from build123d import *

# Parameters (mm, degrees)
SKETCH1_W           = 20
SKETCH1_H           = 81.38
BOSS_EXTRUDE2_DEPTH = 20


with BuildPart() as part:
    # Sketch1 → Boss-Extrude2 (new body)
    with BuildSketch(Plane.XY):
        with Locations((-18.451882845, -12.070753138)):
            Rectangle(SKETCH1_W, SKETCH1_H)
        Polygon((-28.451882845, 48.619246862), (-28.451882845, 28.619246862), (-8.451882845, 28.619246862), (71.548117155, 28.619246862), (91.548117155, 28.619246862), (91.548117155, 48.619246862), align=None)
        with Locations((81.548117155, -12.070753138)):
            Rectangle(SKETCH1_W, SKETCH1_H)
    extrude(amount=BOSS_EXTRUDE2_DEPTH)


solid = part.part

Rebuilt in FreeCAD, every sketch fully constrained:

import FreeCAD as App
import Part
import Sketcher

V = App.Vector
Q = App.Units.Quantity

doc = App.newDocument("Part")
params = doc.addObject("Spreadsheet::Sheet", "Params")
for row, (alias, value) in enumerate([
    ("sketch1_width", "20 mm"),
    ("sketch1_width2", "80 mm"),
    ("sketch1_height", "81.38 mm"),
    ("pad1_length", "20 mm"),
], start=1):
    params.set(f"A{row}", alias)
    params.set(f"B{row}", "=" + value)
    params.setAlias(f"B{row}", alias)

body = doc.addObject("PartDesign::Body", "Body")

# Sketch on XY plane
sketch1 = body.newObject("Sketcher::SketchObject", "Sketch")
sketch1.AttachmentSupport = (doc.getObject("XY_Plane"), [""])
sketch1.MapMode = "FlatFace"
sketch1.addGeometry([
    Part.LineSegment(V(-28, -53, 0), V(-8, -53, 0)),  # 0
    Part.LineSegment(V(-8, -53, 0), V(-8, 29, 0)),  # 1
    Part.LineSegment(V(-8, 29, 0), V(72, 29, 0)),  # 2
    Part.LineSegment(V(72, 29, 0), V(72, -53, 0)),  # 3
    Part.LineSegment(V(72, -53, 0), V(92, -53, 0)),  # 4
    Part.LineSegment(V(92, -53, 0), V(92, 49, 0)),  # 5
    Part.LineSegment(V(92, 49, 0), V(-28, 49, 0)),  # 6
    Part.LineSegment(V(-28, 49, 0), V(-28, -53, 0)),  # 7
], False)
sketch1.addConstraint([
    Sketcher.Constraint("Coincident", 0, 2, 1, 1),
    Sketcher.Constraint("Coincident", 1, 2, 2, 1),
    Sketcher.Constraint("Coincident", 2, 2, 3, 1),
    Sketcher.Constraint("Coincident", 3, 2, 4, 1),
    Sketcher.Constraint("Coincident", 4, 2, 5, 1),
    Sketcher.Constraint("Coincident", 5, 2, 6, 1),
    Sketcher.Constraint("Coincident", 6, 2, 7, 1),
    Sketcher.Constraint("Coincident", 7, 2, 0, 1),
    Sketcher.Constraint("Horizontal", 0),
    Sketcher.Constraint("Vertical", 1),
    Sketcher.Constraint("Horizontal", 2),
    Sketcher.Constraint("Vertical", 3),
    Sketcher.Constraint("Horizontal", 4),
    Sketcher.Constraint("Vertical", 5),
    Sketcher.Constraint("Horizontal", 6),
    Sketcher.Constraint("Vertical", 7),
    Sketcher.Constraint("Horizontal", 0, 2, 3, 2),
    Sketcher.Constraint("Equal", 0, 4),
    Sketcher.Constraint("DistanceX", 0, 1, 0, 2, Q("20 mm")),
    Sketcher.Constraint("DistanceX", 2, 1, 2, 2, Q("80 mm")),
    Sketcher.Constraint("DistanceY", 2, 2, 5, 2, Q("20 mm")),
    Sketcher.Constraint("DistanceY", 1, 1, 1, 2, Q("81.38 mm")),
    Sketcher.Constraint("DistanceX", 0, 2, -1, 1, Q("8.451883 mm")),
    Sketcher.Constraint("DistanceY", 0, 2, -1, 1, Q("52.760753 mm")),
])
sketch1.setExpression("Constraints[18]", "Params.sketch1_width")
sketch1.setExpression("Constraints[19]", "Params.sketch1_width2")
sketch1.setExpression("Constraints[21]", "Params.sketch1_height")
pad1 = body.newObject("PartDesign::Pad", "Pad")
pad1.Profile = sketch1
pad1.setExpression("Length", "Params.pad1_length")

doc.recompute()
